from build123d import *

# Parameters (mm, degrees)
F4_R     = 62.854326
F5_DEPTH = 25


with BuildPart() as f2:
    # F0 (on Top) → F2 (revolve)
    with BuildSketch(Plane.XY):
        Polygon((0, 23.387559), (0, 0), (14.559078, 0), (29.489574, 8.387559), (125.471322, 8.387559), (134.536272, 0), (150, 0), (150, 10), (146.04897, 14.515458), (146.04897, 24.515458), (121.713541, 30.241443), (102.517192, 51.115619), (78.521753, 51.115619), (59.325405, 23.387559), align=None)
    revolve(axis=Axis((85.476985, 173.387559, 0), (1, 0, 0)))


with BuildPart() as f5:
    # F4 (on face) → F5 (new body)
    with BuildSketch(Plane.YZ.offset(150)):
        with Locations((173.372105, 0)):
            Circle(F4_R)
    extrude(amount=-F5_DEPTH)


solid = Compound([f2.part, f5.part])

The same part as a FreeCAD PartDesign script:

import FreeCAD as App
import Part
import Sketcher

V = App.Vector


def add_polygon(sketch, points):
    """Adds a closed chain of lines whose ends are joined by coincident constraints."""
    first, n = sketch.GeometryCount, len(points)
    for a, b in zip(points, points[1:] + points[:1]):
        sketch.addGeometry(Part.LineSegment(App.Vector(*a, 0), App.Vector(*b, 0)), False)
    for i in range(n):
        sketch.addConstraint(Sketcher.Constraint("Coincident", first + i, 2, first + (i + 1) % n, 1))

doc = App.newDocument("Part")
body = doc.addObject("PartDesign::Body", "Body")

# Sketch on XY plane
sketch1 = doc.addObject("Sketcher::SketchObject", "Sketch")
body.addObject(sketch1)
sketch1.AttachmentSupport = (doc.XY_Plane, [""])
sketch1.MapMode = "FlatFace"
add_polygon(sketch1, [(0, 23.387559), (0, 0), (14.559078, 0), (29.489574, 8.387559), (125.471322, 8.387559), (134.536272, 0), (150, 0), (150, 10), (146.04897, 14.515458), (146.04897, 24.515458), (121.713541, 30.241443), (102.517192, 51.115619), (78.521753, 51.115619), (59.325405, 23.387559)])  # lines 0-13
sketch1.addGeometry(Part.LineSegment(V(0, 173.387559, 0), V(150, 173.387559, 0)), True)  # axis
sketch1.addConstraint([
    Sketcher.Constraint("Vertical", 0),
    Sketcher.Constraint("Horizontal", 1),
    Sketcher.Constraint("Horizontal", 3),
    Sketcher.Constraint("Horizontal", 5),
    Sketcher.Constraint("Vertical", 6),
    Sketcher.Constraint("Vertical", 8),
    Sketcher.Constraint("Horizontal", 11),
    Sketcher.Constraint("Horizontal", 13),
    Sketcher.Constraint("Horizontal", 14),
    Sketcher.Constraint("Coincident", 0, 2, -1, 1),
    Sketcher.Constraint("PointOnObject", 4, 2, -1),
    Sketcher.Constraint("PointOnObject", 14, 1, -2),
    Sketcher.Constraint("Vertical", 6, 2, 14, 2),
    Sketcher.Constraint("Equal", 6, 8),
    Sketcher.Constraint("DistanceX", 14, 1, 14, 2, 150.0),
    Sketcher.Constraint("DistanceY", 6, 1, 6, 2, 10.0),
    Sketcher.Constraint("Distance", 7, 6.0),
    Sketcher.Constraint("Distance", 9, 25.0),
    Sketcher.Constraint("DistanceY", 2, 2, 12, 2, 15.0),
    Sketcher.Constraint("DistanceY", 13, 2, 14, 1, 150.0),
    Sketcher.Constraint("DistanceX", 5, 1, 5, 2, 15.463728),
    Sketcher.Constraint("DistanceX", 11, 2, 11, 1, 23.995439),
    Sketcher.Constraint("DistanceY", 0, 2, 0, 1, 23.387559),
    Sketcher.Constraint("DistanceY", 3, 2, 7, 2, 6.127899),
    Sketcher.Constraint("Distance", 4, 12.35008),
    Sketcher.Constraint("DistanceX", 1, 1, 1, 2, 14.559078),
    Sketcher.Constraint("DistanceX", 3, 1, 3, 2, 95.981748),
    Sketcher.Constraint("DistanceX", 13, 2, 13, 1, 59.325405),
    Sketcher.Constraint("DistanceX", -1, 1, 9, 2, 121.713541),
    Sketcher.Constraint("DistanceX", -1, 1, 10, 2, 102.517192),
    Sketcher.Constraint("DistanceY", -1, 1, 10, 2, 51.115619),
])
revolution = doc.addObject("PartDesign::Revolution", "Revolution")
body.addObject(revolution)
revolution.Profile = sketch1
revolution.ReferenceAxis = (sketch1, ["Axis0"])
revolution.Angle = 360
body2 = doc.addObject("PartDesign::Body", "Body001")

# Sketch on YZ plane
sketch2 = doc.addObject("Sketcher::SketchObject", "Sketch001")
body2.addObject(sketch2)
sketch2.AttachmentSupport = (doc.getObject("YZ_Plane001"), [""])
sketch2.MapMode = "FlatFace"
sketch2.AttachmentOffset = App.Placement(V(0, 0, 150), App.Rotation())
sketch2.addGeometry(Part.Circle(V(173.372105, 0, 0), V(0, 0, 1), 62.854326), False)
sketch2.addConstraint([
    Sketcher.Constraint("PointOnObject", 0, 3, -1),
    Sketcher.Constraint("Diameter", 0, 125.708652),
    Sketcher.Constraint("DistanceX", -1, 1, 0, 3, 173.372105),
])
pad1 = doc.addObject("PartDesign::Pad", "Pad")
body2.addObject(pad1)
pad1.Profile = sketch2
pad1.Length = 25
pad1.Reversed = True

doc.recompute()
